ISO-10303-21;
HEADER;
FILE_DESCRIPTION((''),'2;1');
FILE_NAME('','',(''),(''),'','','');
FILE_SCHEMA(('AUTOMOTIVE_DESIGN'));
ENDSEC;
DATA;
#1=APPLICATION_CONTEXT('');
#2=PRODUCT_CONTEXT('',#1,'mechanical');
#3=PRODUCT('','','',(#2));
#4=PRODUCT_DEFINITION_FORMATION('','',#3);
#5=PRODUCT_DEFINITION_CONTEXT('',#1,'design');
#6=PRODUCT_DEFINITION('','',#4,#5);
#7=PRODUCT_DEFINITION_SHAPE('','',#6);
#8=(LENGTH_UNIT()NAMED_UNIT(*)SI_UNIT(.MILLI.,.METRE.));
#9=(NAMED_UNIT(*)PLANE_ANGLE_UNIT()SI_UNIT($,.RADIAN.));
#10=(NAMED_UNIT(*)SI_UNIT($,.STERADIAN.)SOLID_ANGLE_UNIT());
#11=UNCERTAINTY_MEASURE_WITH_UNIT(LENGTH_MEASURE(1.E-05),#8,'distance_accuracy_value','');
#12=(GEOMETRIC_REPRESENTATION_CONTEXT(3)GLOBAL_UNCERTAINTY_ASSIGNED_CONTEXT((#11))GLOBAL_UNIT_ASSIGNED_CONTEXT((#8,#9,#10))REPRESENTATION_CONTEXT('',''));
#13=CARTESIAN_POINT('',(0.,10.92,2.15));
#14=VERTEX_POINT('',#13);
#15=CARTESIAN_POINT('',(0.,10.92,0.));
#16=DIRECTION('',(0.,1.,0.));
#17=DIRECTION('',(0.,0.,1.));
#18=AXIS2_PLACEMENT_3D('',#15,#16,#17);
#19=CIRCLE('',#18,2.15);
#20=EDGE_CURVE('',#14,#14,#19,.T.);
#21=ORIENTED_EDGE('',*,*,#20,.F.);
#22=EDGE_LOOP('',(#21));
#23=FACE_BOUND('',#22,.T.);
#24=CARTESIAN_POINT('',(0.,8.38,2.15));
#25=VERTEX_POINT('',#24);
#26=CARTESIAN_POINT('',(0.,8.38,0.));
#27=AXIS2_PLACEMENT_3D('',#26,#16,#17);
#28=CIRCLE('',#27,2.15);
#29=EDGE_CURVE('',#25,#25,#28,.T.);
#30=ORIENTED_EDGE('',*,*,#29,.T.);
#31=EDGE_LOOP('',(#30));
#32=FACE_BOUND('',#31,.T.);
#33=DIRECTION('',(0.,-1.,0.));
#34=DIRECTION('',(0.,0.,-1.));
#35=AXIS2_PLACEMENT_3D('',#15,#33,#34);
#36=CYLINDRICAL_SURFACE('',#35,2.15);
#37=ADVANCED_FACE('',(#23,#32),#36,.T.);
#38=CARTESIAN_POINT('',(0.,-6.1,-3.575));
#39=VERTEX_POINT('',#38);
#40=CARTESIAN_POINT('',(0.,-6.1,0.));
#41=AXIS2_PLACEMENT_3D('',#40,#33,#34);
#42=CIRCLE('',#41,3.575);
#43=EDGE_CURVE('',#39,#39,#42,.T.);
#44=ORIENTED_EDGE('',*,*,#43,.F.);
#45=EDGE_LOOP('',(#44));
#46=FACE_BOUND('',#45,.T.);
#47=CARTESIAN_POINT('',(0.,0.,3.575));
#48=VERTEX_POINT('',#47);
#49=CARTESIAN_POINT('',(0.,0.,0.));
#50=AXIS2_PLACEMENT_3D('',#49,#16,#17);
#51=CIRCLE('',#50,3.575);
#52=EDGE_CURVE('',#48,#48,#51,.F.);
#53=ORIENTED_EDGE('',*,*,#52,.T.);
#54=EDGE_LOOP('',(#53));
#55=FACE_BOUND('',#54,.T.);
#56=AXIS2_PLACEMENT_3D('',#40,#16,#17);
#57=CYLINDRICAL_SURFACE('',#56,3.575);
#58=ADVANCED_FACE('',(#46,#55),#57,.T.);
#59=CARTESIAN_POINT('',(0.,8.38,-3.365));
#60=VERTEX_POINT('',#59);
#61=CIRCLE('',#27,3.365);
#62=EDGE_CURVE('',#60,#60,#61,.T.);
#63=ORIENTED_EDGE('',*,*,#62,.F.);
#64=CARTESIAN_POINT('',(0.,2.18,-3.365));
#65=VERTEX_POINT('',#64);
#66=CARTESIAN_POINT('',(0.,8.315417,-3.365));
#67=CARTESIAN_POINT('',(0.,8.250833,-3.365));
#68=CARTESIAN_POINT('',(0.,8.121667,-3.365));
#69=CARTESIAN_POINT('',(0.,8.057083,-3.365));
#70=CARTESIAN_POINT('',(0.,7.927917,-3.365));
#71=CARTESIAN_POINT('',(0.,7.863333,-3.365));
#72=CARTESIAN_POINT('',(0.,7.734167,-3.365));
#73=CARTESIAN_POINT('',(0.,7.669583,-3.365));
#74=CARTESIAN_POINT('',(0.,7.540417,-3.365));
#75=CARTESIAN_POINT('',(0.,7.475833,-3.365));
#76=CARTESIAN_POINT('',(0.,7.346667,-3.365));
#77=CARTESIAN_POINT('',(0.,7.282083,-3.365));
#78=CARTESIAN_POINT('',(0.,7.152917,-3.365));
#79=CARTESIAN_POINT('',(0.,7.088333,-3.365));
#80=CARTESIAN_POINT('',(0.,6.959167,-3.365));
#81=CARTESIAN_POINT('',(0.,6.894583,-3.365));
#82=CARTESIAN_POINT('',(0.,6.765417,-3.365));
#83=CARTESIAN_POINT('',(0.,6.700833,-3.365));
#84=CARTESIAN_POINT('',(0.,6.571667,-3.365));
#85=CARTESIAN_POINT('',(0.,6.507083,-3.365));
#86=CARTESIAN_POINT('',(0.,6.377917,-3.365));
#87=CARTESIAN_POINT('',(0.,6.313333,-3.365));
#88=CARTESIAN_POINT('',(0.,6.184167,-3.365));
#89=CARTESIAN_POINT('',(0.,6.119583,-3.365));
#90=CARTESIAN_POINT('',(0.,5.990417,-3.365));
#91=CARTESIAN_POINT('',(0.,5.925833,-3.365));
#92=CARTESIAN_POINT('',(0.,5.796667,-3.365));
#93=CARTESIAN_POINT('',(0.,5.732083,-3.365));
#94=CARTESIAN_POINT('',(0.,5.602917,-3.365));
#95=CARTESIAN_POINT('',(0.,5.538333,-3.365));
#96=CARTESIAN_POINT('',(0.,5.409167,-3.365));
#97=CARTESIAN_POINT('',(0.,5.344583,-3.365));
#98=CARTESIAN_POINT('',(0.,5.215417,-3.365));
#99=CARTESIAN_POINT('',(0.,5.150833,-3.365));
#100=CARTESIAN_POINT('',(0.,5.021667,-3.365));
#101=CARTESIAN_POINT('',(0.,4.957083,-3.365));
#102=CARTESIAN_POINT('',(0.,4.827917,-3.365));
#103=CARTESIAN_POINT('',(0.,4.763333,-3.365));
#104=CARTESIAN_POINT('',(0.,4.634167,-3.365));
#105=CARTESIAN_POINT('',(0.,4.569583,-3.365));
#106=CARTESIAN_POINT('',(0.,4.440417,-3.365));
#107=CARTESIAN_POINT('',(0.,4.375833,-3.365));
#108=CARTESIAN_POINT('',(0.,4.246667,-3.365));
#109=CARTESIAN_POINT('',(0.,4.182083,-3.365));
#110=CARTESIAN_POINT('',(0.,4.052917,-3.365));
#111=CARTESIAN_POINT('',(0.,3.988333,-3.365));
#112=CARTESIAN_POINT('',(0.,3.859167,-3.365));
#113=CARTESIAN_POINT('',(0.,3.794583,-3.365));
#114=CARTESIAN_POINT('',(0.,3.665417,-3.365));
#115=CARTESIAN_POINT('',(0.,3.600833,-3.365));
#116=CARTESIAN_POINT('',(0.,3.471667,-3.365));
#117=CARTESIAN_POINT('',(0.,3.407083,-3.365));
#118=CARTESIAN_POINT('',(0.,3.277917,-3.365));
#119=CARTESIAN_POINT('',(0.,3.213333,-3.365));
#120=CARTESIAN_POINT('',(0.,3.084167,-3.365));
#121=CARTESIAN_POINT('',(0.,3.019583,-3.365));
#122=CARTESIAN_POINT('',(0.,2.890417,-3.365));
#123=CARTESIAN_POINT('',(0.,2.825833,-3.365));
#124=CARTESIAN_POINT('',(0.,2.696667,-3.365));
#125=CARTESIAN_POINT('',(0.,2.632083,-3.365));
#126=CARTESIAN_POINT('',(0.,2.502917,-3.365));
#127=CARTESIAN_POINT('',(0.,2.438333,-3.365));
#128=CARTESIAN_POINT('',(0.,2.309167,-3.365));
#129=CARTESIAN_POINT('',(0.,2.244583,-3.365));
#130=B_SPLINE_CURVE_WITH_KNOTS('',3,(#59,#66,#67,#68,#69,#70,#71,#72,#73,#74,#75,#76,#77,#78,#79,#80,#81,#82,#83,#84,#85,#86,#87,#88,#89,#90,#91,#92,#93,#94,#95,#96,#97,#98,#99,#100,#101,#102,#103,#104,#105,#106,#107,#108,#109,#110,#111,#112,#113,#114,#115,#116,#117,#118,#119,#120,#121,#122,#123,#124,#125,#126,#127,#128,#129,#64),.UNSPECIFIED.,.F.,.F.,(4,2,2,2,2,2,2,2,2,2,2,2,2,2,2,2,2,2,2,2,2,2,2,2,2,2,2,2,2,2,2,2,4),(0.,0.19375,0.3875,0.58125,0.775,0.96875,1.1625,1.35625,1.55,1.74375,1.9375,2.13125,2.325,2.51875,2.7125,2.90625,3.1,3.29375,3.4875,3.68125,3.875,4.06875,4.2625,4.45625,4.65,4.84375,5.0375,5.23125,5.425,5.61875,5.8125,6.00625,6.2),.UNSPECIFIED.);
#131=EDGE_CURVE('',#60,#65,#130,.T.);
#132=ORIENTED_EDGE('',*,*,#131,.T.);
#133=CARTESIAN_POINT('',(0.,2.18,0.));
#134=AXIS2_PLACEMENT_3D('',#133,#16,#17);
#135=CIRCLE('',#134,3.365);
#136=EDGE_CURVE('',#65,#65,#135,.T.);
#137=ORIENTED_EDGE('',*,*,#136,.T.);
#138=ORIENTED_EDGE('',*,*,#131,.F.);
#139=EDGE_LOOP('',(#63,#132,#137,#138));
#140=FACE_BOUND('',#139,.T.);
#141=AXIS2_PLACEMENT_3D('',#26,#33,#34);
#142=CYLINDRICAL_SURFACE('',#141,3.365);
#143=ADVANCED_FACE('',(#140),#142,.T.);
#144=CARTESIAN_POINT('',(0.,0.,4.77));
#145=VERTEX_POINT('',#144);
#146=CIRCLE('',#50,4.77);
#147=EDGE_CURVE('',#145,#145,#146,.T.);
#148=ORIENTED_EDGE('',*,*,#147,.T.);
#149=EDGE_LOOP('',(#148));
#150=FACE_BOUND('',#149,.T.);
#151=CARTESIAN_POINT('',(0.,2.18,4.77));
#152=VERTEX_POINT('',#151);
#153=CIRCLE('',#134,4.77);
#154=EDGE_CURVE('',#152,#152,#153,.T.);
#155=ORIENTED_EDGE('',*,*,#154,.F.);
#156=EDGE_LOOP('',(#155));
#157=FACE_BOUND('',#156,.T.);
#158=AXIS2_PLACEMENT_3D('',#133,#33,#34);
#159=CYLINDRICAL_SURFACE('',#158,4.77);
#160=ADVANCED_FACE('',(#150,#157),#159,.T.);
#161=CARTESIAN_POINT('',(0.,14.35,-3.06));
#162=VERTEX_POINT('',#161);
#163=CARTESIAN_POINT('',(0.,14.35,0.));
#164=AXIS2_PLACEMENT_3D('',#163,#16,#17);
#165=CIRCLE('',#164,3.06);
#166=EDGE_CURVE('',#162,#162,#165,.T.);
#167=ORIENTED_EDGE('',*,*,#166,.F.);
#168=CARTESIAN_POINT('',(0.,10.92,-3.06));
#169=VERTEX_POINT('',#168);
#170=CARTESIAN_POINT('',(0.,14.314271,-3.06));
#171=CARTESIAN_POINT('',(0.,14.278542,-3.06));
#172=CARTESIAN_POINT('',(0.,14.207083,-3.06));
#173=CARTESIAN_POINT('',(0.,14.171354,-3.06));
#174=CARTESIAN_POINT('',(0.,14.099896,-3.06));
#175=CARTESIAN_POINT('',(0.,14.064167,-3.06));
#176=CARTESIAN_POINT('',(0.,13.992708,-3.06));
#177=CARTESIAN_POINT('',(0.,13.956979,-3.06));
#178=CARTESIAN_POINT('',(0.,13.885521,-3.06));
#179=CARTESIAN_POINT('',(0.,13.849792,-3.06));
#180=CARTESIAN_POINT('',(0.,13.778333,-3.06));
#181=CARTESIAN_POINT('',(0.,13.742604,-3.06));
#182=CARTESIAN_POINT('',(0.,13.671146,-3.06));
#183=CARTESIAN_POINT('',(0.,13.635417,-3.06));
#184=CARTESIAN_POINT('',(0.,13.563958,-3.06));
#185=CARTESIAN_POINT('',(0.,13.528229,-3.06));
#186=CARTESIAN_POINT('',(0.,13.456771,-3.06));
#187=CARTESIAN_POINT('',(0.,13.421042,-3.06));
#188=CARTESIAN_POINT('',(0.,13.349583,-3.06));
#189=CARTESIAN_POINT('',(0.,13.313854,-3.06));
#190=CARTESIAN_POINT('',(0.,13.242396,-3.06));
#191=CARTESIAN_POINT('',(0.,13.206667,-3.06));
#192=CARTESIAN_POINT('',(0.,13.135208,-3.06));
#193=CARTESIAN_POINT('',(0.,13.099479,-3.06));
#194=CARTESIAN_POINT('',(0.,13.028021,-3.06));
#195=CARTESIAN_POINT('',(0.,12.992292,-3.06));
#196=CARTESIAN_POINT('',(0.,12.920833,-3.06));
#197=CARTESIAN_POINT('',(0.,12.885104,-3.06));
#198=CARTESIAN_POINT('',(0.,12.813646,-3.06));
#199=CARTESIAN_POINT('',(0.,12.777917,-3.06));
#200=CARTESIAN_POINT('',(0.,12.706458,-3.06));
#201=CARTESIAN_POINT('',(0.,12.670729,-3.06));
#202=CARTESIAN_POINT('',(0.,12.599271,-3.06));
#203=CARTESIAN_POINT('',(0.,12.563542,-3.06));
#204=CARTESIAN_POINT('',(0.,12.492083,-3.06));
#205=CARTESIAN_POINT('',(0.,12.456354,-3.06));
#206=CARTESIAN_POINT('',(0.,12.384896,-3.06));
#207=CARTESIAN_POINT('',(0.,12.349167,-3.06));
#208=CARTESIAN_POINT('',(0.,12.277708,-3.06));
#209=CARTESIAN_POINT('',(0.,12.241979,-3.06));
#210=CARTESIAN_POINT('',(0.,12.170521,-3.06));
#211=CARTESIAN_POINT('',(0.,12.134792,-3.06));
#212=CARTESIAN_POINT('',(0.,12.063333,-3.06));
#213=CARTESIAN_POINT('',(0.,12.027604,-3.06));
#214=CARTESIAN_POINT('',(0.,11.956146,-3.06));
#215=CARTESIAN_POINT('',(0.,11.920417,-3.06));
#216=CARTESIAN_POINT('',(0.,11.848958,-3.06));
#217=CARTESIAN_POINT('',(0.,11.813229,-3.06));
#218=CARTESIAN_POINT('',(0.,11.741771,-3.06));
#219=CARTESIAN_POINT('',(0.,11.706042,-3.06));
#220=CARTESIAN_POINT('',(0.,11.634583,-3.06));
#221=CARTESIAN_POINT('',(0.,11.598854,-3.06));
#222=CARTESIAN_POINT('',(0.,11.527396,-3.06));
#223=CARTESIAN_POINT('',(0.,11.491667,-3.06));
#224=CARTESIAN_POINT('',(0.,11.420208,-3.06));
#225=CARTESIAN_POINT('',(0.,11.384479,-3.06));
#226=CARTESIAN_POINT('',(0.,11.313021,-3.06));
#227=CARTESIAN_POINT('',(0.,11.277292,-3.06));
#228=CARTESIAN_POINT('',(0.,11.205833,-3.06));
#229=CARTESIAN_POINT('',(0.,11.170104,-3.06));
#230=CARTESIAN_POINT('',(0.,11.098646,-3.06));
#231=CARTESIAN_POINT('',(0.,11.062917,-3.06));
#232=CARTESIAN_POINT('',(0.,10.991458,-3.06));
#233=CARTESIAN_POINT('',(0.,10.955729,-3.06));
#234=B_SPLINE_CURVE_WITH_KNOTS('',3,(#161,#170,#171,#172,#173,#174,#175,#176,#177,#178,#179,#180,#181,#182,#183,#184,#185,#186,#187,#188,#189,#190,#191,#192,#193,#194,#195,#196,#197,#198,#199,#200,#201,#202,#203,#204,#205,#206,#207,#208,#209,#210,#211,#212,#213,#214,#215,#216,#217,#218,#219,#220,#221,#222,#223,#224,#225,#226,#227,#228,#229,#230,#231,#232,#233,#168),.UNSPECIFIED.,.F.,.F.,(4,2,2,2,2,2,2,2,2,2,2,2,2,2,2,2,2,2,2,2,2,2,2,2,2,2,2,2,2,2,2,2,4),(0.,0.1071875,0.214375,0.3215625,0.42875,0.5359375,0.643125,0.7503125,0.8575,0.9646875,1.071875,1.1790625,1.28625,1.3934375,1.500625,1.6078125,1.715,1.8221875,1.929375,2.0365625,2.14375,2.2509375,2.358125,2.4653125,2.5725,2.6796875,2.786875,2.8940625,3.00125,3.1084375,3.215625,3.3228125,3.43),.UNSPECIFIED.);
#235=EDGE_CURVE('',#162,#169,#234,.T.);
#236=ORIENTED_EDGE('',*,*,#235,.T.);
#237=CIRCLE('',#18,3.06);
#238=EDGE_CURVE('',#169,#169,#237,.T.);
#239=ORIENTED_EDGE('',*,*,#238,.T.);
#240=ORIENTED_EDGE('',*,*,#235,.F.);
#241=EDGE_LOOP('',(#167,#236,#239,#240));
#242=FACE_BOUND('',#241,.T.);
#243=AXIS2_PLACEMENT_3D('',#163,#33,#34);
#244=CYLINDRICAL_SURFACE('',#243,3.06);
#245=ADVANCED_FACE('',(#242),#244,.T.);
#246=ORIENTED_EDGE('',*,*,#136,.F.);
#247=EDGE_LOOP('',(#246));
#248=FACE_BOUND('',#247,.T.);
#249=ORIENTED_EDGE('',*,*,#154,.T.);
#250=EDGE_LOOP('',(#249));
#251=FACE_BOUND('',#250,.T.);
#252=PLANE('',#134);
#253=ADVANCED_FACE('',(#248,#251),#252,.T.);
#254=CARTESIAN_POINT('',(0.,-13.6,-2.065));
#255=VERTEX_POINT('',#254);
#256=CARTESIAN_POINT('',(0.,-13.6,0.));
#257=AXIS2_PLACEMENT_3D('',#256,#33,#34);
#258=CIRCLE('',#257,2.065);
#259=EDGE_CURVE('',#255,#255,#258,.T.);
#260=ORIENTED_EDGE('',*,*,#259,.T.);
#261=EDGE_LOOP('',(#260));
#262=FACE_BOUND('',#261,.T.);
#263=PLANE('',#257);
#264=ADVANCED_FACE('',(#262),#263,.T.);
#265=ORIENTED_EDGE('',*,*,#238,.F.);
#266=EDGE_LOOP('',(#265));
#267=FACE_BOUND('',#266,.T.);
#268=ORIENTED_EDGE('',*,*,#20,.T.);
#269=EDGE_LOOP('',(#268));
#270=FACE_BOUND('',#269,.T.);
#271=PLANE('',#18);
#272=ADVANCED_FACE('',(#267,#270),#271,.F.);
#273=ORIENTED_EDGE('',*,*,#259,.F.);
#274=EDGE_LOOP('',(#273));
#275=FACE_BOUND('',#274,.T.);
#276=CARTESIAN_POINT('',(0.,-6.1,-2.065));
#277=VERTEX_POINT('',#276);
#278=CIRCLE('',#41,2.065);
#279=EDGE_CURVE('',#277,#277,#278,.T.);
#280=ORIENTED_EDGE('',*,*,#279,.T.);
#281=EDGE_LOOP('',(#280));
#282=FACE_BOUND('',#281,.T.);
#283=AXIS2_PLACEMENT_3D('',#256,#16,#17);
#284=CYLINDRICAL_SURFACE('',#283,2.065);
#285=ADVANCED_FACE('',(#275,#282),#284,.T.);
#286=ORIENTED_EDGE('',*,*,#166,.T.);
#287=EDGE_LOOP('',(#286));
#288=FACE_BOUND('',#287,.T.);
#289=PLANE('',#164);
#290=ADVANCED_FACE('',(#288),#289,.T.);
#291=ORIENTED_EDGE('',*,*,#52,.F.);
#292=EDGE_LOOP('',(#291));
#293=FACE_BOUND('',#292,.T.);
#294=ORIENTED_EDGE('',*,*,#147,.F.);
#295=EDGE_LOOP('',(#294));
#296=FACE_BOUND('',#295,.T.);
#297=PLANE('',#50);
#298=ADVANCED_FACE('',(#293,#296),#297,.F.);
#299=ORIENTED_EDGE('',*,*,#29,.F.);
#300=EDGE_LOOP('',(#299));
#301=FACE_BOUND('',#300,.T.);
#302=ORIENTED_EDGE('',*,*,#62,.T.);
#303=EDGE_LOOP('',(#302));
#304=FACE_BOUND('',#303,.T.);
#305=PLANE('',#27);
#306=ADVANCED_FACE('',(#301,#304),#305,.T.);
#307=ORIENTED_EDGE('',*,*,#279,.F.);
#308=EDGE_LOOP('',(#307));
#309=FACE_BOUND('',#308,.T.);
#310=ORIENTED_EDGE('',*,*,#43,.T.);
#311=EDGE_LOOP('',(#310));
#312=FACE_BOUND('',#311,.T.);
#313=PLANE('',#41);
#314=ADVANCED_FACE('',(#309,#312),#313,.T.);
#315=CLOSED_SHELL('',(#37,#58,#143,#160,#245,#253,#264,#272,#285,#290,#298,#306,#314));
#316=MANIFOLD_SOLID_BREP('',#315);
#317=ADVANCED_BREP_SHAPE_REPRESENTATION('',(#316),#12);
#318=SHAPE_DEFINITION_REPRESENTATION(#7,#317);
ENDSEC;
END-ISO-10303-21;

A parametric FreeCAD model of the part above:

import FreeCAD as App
import Part
import Sketcher
from FreeCAD import Vector
Q = App.Units.Quantity

doc = App.newDocument("Part")
body = doc.addObject("PartDesign::Body", "Body")

# Sketch on XZ plane
sketch1 = body.newObject("Sketcher::SketchObject", "Sketch")
sketch1.AttachmentSupport = (doc.getObject("XZ_Plane"), [""])
sketch1.MapMode = "FlatFace"
sketch1.addGeometry(Part.Circle(Vector(0, 0, 0), Vector(0, 0, 1), 4.8), False)
sketch1.addConstraint(Sketcher.Constraint("Coincident", 0, 3, -1, 1))
sketch1.addConstraint(Sketcher.Constraint("Diameter", 0, Q("9.54 mm")))
pad1 = body.newObject("PartDesign::Pad", "Pad")
pad1.Profile = sketch1
pad1.Length = 2.18
pad1.Reversed = True

# Sketch on XZ plane
sketch2 = body.newObject("Sketcher::SketchObject", "Sketch001")
sketch2.AttachmentSupport = (doc.getObject("XZ_Plane"), [""])
sketch2.MapMode = "FlatFace"
sketch2.addGeometry(Part.Circle(Vector(0, 0, 0), Vector(0, 0, 1), 3.6), False)
sketch2.addConstraint(Sketcher.Constraint("Coincident", 0, 3, -1, 1))
sketch2.addConstraint(Sketcher.Constraint("Diameter", 0, Q("7.15 mm")))
pad2 = body.newObject("PartDesign::Pad", "Pad001")
pad2.Profile = sketch2
pad2.Length = 6.1

# Sketch on XZ plane
sketch3 = body.newObject("Sketcher::SketchObject", "Sketch002")
sketch3.AttachmentSupport = (doc.getObject("XZ_Plane"), [""])
sketch3.MapMode = "FlatFace"
sketch3.AttachmentOffset = App.Placement(Vector(0, 0, 6.1), App.Rotation())
sketch3.addGeometry(Part.Circle(Vector(0, 0, 0), Vector(0, 0, 1), 2.1), False)
sketch3.addConstraint(Sketcher.Constraint("Coincident", 0, 3, -1, 1))
sketch3.addConstraint(Sketcher.Constraint("Diameter", 0, Q("4.13 mm")))
pad3 = body.newObject("PartDesign::Pad", "Pad002")
pad3.Profile = sketch3
pad3.Length = 7.5

# Sketch on XZ plane
sketch4 = body.newObject("Sketcher::SketchObject", "Sketch003")
sketch4.AttachmentSupport = (doc.getObject("XZ_Plane"), [""])
sketch4.MapMode = "FlatFace"
sketch4.AttachmentOffset = App.Placement(Vector(0, 0, -2.18), App.Rotation())
sketch4.addGeometry(Part.Circle(Vector(0, 0, 0), Vector(0, 0, 1), 3.4), False)
sketch4.addConstraint(Sketcher.Constraint("Coincident", 0, 3, -1, 1))
sketch4.addConstraint(Sketcher.Constraint("Diameter", 0, Q("6.73 mm")))
pad4 = body.newObject("PartDesign::Pad", "Pad003")
pad4.Profile = sketch4
pad4.Length = 6.2
pad4.Reversed = True

# Sketch on XZ plane
sketch5 = body.newObject("Sketcher::SketchObject", "Sketch004")
sketch5.AttachmentSupport = (doc.getObject("XZ_Plane"), [""])
sketch5.MapMode = "FlatFace"
sketch5.AttachmentOffset = App.Placement(Vector(0, 0, -8.38), App.Rotation())
sketch5.addGeometry(Part.Circle(Vector(0, 0, 0), Vector(0, 0, 1), 2.1), False)
sketch5.addConstraint(Sketcher.Constraint("Coincident", 0, 3, -1, 1))
sketch5.addConstraint(Sketcher.Constraint("Diameter", 0, Q("4.3 mm")))
pad5 = body.newObject("PartDesign::Pad", "Pad004")
pad5.Profile = sketch5
pad5.Length = 2.54
pad5.Reversed = True

# Sketch on XZ plane
sketch6 = body.newObject("Sketcher::SketchObject", "Sketch005")
sketch6.AttachmentSupport = (doc.getObject("XZ_Plane"), [""])
sketch6.MapMode = "FlatFace"
sketch6.AttachmentOffset = App.Placement(Vector(0, 0, -10.92), App.Rotation())
sketch6.addGeometry(Part.Circle(Vector(0, 0, 0), Vector(0, 0, 1), 3.1), False)
sketch6.addConstraint(Sketcher.Constraint("Coincident", 0, 3, -1, 1))
sketch6.addConstraint(Sketcher.Constraint("Diameter", 0, Q("6.12 mm")))
pad6 = body.newObject("PartDesign::Pad", "Pad005")
pad6.Profile = sketch6
pad6.Length = 3.43
pad6.Reversed = True

doc.recompute()
